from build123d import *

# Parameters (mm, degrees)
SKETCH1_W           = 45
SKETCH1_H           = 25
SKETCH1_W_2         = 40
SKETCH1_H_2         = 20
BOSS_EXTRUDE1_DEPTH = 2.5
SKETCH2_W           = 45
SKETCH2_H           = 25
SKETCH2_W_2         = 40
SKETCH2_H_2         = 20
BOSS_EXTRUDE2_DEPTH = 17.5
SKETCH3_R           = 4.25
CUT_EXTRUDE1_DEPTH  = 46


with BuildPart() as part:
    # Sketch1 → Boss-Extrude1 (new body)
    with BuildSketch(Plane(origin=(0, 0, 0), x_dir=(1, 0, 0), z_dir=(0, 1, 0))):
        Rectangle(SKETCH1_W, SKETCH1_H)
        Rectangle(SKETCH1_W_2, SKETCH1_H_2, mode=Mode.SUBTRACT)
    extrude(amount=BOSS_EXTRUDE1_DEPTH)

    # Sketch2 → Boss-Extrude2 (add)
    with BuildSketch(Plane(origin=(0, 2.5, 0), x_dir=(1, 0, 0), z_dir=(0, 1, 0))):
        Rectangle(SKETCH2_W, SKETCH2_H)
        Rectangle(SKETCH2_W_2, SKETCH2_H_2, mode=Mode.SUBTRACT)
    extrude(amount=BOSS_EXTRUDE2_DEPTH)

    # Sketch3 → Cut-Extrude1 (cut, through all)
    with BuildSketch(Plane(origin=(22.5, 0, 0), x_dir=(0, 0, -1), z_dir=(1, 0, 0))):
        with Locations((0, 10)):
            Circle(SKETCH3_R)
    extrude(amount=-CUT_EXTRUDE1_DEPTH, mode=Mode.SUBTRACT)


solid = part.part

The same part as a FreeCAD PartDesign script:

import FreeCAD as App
import Part
import Sketcher
Q = App.Units.Quantity


def add_polygon(sketch, points):
    """Adds a closed chain of lines whose ends are joined by coincident constraints."""
    first, n = sketch.GeometryCount, len(points)
    for a, b in zip(points, points[1:] + points[:1]):
        sketch.addGeometry(Part.LineSegment(App.Vector(*a, 0), App.Vector(*b, 0)), False)
    for i in range(n):
        sketch.addConstraint(Sketcher.Constraint("Coincident", first + i, 2, first + (i + 1) % n, 1))

doc = App.newDocument("Part")
body = doc.addObject("PartDesign::Body", "Body")

sketch1 = body.newObject("Sketcher::SketchObject", "Sketch")
sketch1.AttachmentSupport = (doc.getObject("XZ_Plane"), [""])
sketch1.MapMode = "FlatFace"
add_polygon(sketch1, [(-22, -12), (-22, 12), (22, 12), (22, -12)])
add_polygon(sketch1, [(20, 10), (-20, 10), (-20, -10), (20, -10)])
sketch1.addConstraint([
    Sketcher.Constraint("Vertical", 0),
    Sketcher.Constraint("Horizontal", 1),
    Sketcher.Constraint("Vertical", 2),
    Sketcher.Constraint("Horizontal", 3),
    Sketcher.Constraint("Horizontal", 4),
    Sketcher.Constraint("Vertical", 5),
    Sketcher.Constraint("Horizontal", 6),
    Sketcher.Constraint("Vertical", 7),
    Sketcher.Constraint("Symmetric", 0, 2, 2, 2, -1, 1),
    Sketcher.Constraint("Symmetric", 4, 2, 6, 2, -1, 1),
    Sketcher.Constraint("DistanceX", 1, 1, 1, 2, Q("45 mm")),
    Sketcher.Constraint("DistanceX", 4, 2, 4, 1, Q("40 mm")),
    Sketcher.Constraint("DistanceY", 0, 1, 0, 2, Q("25 mm")),
    Sketcher.Constraint("DistanceY", 5, 2, 5, 1, Q("20 mm")),
])
pad1 = body.newObject("PartDesign::Pad", "Pad")
pad1.Profile = sketch1
pad1.Length = 2.5
pad1.Reversed = True

sketch2 = body.newObject("Sketcher::SketchObject", "Sketch001")
sketch2.AttachmentSupport = (doc.getObject("XZ_Plane"), [""])
sketch2.MapMode = "FlatFace"
sketch2.AttachmentOffset = App.Placement(App.Vector(0, 0, -2.5), App.Rotation())
add_polygon(sketch2, [(-22, -12), (-22, 12), (22, 12), (22, -12)])
add_polygon(sketch2, [(20, 10), (-20, 10), (-20, -10), (20, -10)])
sketch2.addConstraint([
    Sketcher.Constraint("Vertical", 0),
    Sketcher.Constraint("Horizontal", 1),
    Sketcher.Constraint("Vertical", 2),
    Sketcher.Constraint("Horizontal", 3),
    Sketcher.Constraint("Horizontal", 4),
    Sketcher.Constraint("Vertical", 5),
    Sketcher.Constraint("Horizontal", 6),
    Sketcher.Constraint("Vertical", 7),
    Sketcher.Constraint("Symmetric", 0, 2, 2, 2, -1, 1),
    Sketcher.Constraint("Symmetric", 4, 2, 6, 2, -1, 1),
    Sketcher.Constraint("DistanceX", 1, 1, 1, 2, Q("45 mm")),
    Sketcher.Constraint("DistanceX", 4, 2, 4, 1, Q("40 mm")),
    Sketcher.Constraint("DistanceY", 0, 1, 0, 2, Q("25 mm")),
    Sketcher.Constraint("DistanceY", 5, 2, 5, 1, Q("20 mm")),
])
pad2 = body.newObject("PartDesign::Pad", "Pad001")
pad2.Profile = sketch2
pad2.Length = 17.5
pad2.Reversed = True

sketch3 = body.newObject("Sketcher::SketchObject", "Sketch002")
sketch3.AttachmentSupport = (doc.getObject("YZ_Plane"), [""])
sketch3.MapMode = "FlatFace"
sketch3.AttachmentOffset = App.Placement(App.Vector(0, 0, 22.5), App.Rotation())
sketch3.addGeometry(Part.Circle(App.Vector(10, 0, 0), App.Vector(0, 0, 1), 4.2), False)
sketch3.addConstraint([
    Sketcher.Constraint("PointOnObject", 0, 3, -1),
    Sketcher.Constraint("Diameter", 0, Q("8.5 mm")),
    Sketcher.Constraint("DistanceX", -1, 1, 0, 3, Q("10 mm")),
])
pocket1 = body.newObject("PartDesign::Pocket", "Pocket")
pocket1.Profile = sketch3
pocket1.Type = "ThroughAll"

doc.recompute()
